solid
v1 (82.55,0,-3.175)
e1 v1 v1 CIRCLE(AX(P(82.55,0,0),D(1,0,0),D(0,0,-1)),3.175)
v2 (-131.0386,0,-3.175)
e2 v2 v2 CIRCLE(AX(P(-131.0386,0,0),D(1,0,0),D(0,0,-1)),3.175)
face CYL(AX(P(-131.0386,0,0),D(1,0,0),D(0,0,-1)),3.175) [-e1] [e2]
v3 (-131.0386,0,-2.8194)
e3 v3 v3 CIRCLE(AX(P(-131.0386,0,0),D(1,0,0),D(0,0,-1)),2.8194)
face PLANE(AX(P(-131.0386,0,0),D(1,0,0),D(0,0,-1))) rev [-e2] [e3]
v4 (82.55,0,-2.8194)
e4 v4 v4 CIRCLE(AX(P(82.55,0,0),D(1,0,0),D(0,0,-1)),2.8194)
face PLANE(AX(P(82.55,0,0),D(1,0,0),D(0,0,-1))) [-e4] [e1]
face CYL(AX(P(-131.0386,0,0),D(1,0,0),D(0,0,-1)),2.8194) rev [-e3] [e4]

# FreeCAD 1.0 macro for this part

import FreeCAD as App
import Part
import Sketcher

V = App.Vector
Q = App.Units.Quantity

doc = App.newDocument("Part")
body = doc.addObject("PartDesign::Body", "Body")

# Sketch on YZ plane
sketch1 = body.newObject("Sketcher::SketchObject", "Sketch")
sketch1.AttachmentSupport = (doc.getObject("YZ_Plane"), [""])
sketch1.MapMode = "FlatFace"
sketch1.addGeometry([
    Part.Circle(V(0, 0, 0), V(0, 0, 1), 3.2),
    Part.Circle(V(0, 0, 0), V(0, 0, 1), 2.8),
], False)
sketch1.addConstraint([
    Sketcher.Constraint("Coincident", 0, 3, -1, 1),
    Sketcher.Constraint("Coincident", 1, 3, -1, 1),
    Sketcher.Constraint("Diameter", 0, Q("0.25 in")),
    Sketcher.Constraint("Diameter", 1, Q("0.222 in")),
])
pad1 = body.newObject("PartDesign::Pad", "Pad")
pad1.Profile = sketch1
pad1.Type = "TwoLengths"
pad1.Length = Q("3.25 in")
pad1.Length2 = Q("5.159 in")

doc.recompute()
